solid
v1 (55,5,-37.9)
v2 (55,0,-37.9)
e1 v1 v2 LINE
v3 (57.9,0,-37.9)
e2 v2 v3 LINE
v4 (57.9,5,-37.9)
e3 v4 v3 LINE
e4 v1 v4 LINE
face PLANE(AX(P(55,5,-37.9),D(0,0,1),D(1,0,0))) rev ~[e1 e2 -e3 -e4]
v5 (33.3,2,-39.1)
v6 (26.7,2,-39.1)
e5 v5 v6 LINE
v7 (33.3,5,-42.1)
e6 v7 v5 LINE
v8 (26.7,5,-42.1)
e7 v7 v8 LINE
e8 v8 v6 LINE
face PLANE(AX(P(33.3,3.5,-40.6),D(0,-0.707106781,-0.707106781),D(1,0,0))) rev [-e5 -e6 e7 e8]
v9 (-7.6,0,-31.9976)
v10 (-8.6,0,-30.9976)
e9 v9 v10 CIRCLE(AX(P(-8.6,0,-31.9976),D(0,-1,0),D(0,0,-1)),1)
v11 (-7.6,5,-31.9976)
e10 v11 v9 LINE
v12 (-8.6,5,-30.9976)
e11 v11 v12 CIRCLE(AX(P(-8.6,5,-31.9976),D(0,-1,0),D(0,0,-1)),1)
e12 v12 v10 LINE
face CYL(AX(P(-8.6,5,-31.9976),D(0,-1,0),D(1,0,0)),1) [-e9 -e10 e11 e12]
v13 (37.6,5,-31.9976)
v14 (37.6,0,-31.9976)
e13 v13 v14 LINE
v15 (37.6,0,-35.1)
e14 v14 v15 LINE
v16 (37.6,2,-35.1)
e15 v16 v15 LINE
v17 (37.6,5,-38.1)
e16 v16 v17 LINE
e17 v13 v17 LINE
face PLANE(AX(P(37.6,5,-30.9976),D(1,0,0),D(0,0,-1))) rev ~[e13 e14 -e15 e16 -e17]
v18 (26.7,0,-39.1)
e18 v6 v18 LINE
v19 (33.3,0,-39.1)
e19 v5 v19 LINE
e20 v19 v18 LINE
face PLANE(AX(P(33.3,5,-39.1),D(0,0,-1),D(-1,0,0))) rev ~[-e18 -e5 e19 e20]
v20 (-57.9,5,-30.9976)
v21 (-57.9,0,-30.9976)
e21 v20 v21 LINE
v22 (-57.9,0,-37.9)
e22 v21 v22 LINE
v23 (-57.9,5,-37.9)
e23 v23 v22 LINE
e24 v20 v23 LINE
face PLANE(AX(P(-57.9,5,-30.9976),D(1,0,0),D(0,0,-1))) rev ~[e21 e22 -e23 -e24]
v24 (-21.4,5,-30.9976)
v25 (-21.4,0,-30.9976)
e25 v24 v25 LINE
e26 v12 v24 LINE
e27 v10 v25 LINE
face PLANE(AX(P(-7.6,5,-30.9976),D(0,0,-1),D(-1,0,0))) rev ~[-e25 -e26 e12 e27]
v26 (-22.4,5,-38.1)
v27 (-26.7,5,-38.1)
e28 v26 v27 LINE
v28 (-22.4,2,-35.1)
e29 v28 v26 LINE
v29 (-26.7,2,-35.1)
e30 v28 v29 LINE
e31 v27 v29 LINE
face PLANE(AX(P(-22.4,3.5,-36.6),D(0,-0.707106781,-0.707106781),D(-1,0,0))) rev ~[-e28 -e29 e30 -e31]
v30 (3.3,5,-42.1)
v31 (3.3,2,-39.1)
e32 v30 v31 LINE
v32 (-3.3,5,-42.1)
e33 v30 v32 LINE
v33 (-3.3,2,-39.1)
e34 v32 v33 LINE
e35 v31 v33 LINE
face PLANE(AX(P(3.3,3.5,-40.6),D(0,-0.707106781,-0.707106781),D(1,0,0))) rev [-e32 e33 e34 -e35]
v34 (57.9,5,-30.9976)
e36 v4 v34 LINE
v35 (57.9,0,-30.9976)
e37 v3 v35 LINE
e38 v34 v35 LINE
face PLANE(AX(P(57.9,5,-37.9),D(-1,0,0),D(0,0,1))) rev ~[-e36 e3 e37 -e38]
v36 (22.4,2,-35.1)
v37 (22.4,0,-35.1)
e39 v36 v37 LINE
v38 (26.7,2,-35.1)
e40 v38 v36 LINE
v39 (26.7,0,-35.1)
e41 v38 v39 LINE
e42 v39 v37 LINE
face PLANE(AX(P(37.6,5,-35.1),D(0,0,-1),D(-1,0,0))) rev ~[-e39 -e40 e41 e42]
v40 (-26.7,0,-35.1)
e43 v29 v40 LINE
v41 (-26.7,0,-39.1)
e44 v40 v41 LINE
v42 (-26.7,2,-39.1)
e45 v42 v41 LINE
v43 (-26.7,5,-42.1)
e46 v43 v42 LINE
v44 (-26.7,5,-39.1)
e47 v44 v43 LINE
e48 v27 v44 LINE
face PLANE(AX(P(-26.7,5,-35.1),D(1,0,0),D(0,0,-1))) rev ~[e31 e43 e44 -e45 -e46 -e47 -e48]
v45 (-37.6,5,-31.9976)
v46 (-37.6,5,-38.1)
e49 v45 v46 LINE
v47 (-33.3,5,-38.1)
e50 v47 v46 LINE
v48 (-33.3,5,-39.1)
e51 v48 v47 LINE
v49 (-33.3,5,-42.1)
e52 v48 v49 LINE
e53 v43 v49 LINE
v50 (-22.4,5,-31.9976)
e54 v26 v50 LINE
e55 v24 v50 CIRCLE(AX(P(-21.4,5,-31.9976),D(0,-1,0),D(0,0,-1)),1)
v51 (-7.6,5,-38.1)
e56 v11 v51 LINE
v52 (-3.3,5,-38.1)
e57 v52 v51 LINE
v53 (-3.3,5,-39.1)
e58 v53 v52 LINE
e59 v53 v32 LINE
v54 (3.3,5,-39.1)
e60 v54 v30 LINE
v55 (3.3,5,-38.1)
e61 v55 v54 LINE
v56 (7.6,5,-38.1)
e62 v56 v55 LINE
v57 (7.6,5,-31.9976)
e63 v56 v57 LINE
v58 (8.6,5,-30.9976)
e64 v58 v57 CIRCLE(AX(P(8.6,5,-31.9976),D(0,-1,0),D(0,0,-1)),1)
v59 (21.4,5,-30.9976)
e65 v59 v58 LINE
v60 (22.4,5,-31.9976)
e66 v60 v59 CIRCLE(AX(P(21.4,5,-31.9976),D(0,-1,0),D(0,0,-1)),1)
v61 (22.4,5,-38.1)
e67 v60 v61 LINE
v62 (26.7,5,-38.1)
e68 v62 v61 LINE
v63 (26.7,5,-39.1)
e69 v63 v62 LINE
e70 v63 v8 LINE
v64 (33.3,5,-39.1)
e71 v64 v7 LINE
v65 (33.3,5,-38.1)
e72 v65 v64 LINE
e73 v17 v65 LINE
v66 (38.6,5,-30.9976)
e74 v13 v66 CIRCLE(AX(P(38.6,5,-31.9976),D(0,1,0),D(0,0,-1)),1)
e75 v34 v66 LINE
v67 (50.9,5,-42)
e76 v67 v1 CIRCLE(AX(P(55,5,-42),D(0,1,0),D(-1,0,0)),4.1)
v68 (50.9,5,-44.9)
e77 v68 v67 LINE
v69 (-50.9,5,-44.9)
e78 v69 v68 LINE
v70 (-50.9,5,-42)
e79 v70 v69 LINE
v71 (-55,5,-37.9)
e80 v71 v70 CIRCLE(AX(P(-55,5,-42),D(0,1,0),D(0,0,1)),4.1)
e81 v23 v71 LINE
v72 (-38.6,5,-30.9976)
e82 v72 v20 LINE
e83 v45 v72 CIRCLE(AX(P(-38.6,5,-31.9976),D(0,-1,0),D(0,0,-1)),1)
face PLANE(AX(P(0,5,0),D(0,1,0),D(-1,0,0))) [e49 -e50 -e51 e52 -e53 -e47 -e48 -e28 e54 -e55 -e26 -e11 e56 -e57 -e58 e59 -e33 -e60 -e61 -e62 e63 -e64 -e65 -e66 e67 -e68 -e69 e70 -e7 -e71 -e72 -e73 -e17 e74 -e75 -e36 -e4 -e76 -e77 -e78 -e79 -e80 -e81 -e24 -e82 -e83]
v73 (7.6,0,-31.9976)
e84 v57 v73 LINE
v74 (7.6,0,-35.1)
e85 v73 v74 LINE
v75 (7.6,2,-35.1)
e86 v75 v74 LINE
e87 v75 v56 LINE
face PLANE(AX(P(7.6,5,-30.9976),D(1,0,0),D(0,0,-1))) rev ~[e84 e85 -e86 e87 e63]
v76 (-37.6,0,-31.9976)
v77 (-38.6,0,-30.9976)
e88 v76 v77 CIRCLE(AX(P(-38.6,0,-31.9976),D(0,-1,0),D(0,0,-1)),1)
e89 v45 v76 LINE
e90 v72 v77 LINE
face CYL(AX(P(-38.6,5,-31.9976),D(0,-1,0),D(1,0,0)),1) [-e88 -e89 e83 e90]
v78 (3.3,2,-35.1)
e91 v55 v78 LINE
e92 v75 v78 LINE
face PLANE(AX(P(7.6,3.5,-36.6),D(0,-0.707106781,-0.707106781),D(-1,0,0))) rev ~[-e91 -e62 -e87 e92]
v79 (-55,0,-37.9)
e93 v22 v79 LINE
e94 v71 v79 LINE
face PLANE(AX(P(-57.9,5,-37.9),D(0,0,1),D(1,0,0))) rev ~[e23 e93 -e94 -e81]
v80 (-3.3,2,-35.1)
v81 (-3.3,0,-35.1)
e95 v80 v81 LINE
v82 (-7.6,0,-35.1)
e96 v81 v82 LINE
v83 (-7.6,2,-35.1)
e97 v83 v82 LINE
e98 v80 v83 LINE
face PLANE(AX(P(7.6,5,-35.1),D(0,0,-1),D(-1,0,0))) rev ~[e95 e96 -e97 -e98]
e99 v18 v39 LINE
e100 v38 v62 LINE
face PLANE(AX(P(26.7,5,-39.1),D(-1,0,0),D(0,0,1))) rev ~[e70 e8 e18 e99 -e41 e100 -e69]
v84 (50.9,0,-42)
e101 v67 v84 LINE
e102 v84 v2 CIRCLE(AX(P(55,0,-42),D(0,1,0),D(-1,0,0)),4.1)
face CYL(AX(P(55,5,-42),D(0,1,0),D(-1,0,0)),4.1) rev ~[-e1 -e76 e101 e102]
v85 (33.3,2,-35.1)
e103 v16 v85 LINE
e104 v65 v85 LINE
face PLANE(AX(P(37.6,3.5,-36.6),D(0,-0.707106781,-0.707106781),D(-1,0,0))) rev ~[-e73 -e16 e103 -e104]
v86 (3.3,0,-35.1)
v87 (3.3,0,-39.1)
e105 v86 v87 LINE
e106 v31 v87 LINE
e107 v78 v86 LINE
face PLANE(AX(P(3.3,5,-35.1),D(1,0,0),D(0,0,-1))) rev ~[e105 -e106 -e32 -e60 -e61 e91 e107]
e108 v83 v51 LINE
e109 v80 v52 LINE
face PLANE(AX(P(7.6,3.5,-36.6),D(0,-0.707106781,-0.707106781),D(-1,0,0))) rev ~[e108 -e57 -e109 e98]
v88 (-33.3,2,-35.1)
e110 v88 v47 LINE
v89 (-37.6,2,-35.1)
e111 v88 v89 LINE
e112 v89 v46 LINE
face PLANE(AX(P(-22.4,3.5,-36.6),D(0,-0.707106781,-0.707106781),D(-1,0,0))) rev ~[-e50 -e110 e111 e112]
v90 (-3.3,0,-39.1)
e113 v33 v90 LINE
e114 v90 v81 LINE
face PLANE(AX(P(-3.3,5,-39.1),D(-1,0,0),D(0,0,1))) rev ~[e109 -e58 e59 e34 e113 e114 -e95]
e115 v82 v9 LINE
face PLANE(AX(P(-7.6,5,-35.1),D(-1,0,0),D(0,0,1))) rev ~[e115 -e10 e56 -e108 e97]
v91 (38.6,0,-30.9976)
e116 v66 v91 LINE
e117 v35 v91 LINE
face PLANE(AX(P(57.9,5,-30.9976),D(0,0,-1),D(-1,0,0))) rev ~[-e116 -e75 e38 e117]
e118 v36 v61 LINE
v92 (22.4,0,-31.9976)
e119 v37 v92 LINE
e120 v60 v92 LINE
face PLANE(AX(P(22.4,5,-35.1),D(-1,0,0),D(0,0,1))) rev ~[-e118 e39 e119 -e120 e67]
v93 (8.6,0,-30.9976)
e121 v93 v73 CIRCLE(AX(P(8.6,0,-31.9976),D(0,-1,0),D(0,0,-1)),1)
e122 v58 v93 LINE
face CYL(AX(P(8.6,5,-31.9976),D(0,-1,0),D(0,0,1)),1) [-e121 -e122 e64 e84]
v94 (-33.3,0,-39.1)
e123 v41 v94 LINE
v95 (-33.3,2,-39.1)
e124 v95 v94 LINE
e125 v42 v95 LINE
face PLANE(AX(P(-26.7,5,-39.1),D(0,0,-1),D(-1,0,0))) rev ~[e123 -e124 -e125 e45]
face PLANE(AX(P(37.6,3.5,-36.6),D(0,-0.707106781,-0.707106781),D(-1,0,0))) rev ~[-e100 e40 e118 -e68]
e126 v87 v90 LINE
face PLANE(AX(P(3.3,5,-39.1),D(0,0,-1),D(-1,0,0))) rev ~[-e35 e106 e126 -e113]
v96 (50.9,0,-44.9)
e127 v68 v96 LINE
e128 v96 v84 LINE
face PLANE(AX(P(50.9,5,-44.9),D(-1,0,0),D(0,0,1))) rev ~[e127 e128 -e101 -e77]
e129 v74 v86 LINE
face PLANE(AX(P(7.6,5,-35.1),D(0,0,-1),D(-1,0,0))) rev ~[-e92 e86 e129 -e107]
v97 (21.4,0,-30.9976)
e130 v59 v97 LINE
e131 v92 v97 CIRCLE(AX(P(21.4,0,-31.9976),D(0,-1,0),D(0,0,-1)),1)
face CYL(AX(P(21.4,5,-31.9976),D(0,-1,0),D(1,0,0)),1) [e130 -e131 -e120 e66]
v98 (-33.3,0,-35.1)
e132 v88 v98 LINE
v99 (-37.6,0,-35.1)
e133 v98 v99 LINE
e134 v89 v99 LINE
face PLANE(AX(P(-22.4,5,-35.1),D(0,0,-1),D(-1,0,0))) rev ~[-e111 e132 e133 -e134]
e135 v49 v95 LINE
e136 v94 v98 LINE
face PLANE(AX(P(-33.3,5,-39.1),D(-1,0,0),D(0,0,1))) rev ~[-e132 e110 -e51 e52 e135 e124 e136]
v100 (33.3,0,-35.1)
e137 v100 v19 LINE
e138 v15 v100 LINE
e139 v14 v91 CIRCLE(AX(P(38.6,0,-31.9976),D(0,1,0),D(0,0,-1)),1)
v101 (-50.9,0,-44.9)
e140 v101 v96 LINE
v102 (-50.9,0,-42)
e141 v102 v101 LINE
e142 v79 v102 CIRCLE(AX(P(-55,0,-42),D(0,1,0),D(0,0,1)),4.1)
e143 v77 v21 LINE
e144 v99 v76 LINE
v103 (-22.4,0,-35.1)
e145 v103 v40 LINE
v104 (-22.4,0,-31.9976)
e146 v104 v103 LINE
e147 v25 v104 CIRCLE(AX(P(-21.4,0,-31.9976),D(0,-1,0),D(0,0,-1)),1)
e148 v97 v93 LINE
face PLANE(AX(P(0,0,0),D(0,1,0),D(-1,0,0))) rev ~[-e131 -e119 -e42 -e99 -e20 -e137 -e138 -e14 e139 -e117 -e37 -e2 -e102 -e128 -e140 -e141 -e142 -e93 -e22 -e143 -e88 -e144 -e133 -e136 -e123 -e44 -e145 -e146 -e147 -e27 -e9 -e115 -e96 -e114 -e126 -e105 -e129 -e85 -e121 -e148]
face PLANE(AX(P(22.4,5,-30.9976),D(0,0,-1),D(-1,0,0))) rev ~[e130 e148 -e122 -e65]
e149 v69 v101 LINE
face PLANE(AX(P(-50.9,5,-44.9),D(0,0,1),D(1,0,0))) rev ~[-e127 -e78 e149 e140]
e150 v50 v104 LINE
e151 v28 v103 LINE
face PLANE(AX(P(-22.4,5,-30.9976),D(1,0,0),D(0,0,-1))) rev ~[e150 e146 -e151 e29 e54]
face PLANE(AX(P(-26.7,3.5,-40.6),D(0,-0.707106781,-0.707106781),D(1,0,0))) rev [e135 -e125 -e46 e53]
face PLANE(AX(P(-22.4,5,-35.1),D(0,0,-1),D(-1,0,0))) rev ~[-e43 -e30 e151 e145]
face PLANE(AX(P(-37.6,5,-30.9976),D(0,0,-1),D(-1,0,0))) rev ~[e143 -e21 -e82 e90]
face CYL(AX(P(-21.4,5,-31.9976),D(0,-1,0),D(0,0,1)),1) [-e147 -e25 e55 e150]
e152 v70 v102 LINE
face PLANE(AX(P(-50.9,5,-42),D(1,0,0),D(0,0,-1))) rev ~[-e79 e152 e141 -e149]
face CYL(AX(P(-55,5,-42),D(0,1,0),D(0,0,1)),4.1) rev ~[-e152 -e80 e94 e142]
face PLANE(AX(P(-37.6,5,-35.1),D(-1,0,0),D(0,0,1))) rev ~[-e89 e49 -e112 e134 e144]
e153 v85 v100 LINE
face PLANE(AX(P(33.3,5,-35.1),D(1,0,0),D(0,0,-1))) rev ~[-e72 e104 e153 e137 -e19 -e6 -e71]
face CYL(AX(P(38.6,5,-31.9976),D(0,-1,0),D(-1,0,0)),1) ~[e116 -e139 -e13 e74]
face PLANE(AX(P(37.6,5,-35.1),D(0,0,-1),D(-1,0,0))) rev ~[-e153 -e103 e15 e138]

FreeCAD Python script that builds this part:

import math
import FreeCAD as App
import Part
import Sketcher
from FreeCAD import Vector


def edges_at(feature, points):
    """Names of the edges that pass closest to the given points."""
    edges = feature.Shape.Edges
    near = lambda p: min(range(len(edges)), key=lambda i: edges[i].distToShape(Part.Vertex(*p))[0])
    return sorted({f"Edge{near(p) + 1}" for p in points})

doc = App.newDocument("Part")
params = doc.addObject("Spreadsheet::Sheet", "Params")
for row, (alias, value) in enumerate([
    ("sketch1_radius", "4 mm"),
    ("sketch1_width", "15 mm"),
    ("sketch1_width2", "3 mm"),
    ("sketch1_width3", "102 mm"),
    ("pad1_length", "5 mm"),
    ("sketch2_radius", "4 mm"),
    ("sketch2_radius2", "4.1 mm"),
    ("sketch2_width", "3 mm"),
    ("sketch2_width2", "15 mm"),
    ("sketch2_width3", "102 mm"),
    ("pocket1_length", "5 mm"),
    ("chamfer_size", "3 mm"),
    ("fillet_radius", "1 mm"),
    ("sketch3_width", "6.6 mm"),
    ("sketch3_height", "4 mm"),
    ("pocket2_length", "5 mm"),
    ("chamfer2_size", "3 mm"),
], start=1):
    params.set(f"A{row}", alias)
    params.set(f"B{row}", "=" + value)
    params.setAlias(f"B{row}", alias)

body = doc.addObject("PartDesign::Body", "Body")

sketch1 = body.newObject("Sketcher::SketchObject", "Sketch")
sketch1.AttachmentSupport = (doc.getObject("XZ_Plane"), [""])
sketch1.MapMode = "FlatFace"
sketch1.addGeometry(Part.LineSegment(Vector(-58, -38, 0), Vector(-58, -30.9, 0)), False)
sketch1.addGeometry(Part.LineSegment(Vector(-58, -30.9, 0), Vector(-37.5, -30.9, 0)), False)
sketch1.addGeometry(Part.LineSegment(Vector(-37.5, -30.9, 0), Vector(-37.5, -35, 0)), False)
sketch1.addGeometry(Part.LineSegment(Vector(-37.5, -35, 0), Vector(-22.5, -35, 0)), False)
sketch1.addGeometry(Part.LineSegment(Vector(-22.5, -35, 0), Vector(-22.5, -30.9, 0)), False)
sketch1.addGeometry(Part.LineSegment(Vector(-22.5, -30.9, 0), Vector(-7.5, -30.9, 0)), False)
sketch1.addGeometry(Part.LineSegment(Vector(-7.5, -30.9, 0), Vector(-7.5, -35, 0)), False)
sketch1.addGeometry(Part.LineSegment(Vector(-7.5, -35, 0), Vector(7.5, -35, 0)), False)
sketch1.addGeometry(Part.LineSegment(Vector(7.5, -35, 0), Vector(7.5, -30.9, 0)), False)
sketch1.addGeometry(Part.LineSegment(Vector(7.5, -30.9, 0), Vector(22.5, -30.9, 0)), False)
sketch1.addGeometry(Part.LineSegment(Vector(22.5, -30.9, 0), Vector(22.5, -35, 0)), False)
sketch1.addGeometry(Part.LineSegment(Vector(22.5, -35, 0), Vector(37.5, -35, 0)), False)
sketch1.addGeometry(Part.LineSegment(Vector(37.5, -35, 0), Vector(37.5, -30.9, 0)), False)
sketch1.addGeometry(Part.LineSegment(Vector(37.5, -30.9, 0), Vector(58, -30.9, 0)), False)
sketch1.addGeometry(Part.LineSegment(Vector(58, -30.9, 0), Vector(58, -38, 0)), False)
sketch1.addGeometry(Part.LineSegment(Vector(58, -38, 0), Vector(55, -38, 0)), False)
sketch1.addGeometry(Part.ArcOfCircle(Part.Circle(Vector(55, -42, 0), Vector(0, 0, 1), 4), math.radians(90), math.radians(180)), False)
sketch1.addGeometry(Part.LineSegment(Vector(51, -42, 0), Vector(51, -45, 0)), False)
sketch1.addGeometry(Part.LineSegment(Vector(51, -45, 0), Vector(-51, -45, 0)), False)
sketch1.addGeometry(Part.LineSegment(Vector(-51, -45, 0), Vector(-51, -42, 0)), False)
sketch1.addGeometry(Part.ArcOfCircle(Part.Circle(Vector(-55, -42, 0), Vector(0, 0, 1), 4), math.radians(0), math.radians(90)), False)
sketch1.addGeometry(Part.LineSegment(Vector(-55, -38, 0), Vector(-58, -38, 0)), False)
sketch1.addConstraint(Sketcher.Constraint("Coincident", 0, 2, 1, 1))
sketch1.addConstraint(Sketcher.Constraint("Coincident", 1, 2, 2, 1))
sketch1.addConstraint(Sketcher.Constraint("Coincident", 2, 2, 3, 1))
sketch1.addConstraint(Sketcher.Constraint("Coincident", 3, 2, 4, 1))
sketch1.addConstraint(Sketcher.Constraint("Coincident", 4, 2, 5, 1))
sketch1.addConstraint(Sketcher.Constraint("Coincident", 5, 2, 6, 1))
sketch1.addConstraint(Sketcher.Constraint("Coincident", 6, 2, 7, 1))
sketch1.addConstraint(Sketcher.Constraint("Coincident", 7, 2, 8, 1))
sketch1.addConstraint(Sketcher.Constraint("Coincident", 8, 2, 9, 1))
sketch1.addConstraint(Sketcher.Constraint("Coincident", 9, 2, 10, 1))
sketch1.addConstraint(Sketcher.Constraint("Coincident", 10, 2, 11, 1))
sketch1.addConstraint(Sketcher.Constraint("Coincident", 11, 2, 12, 1))
sketch1.addConstraint(Sketcher.Constraint("Coincident", 12, 2, 13, 1))
sketch1.addConstraint(Sketcher.Constraint("Coincident", 13, 2, 14, 1))
sketch1.addConstraint(Sketcher.Constraint("Coincident", 14, 2, 15, 1))
sketch1.addConstraint(Sketcher.Constraint("Tangent", 15, 2, 16, 1))
sketch1.addConstraint(Sketcher.Constraint("Tangent", 16, 2, 17, 1))
sketch1.addConstraint(Sketcher.Constraint("Coincident", 17, 2, 18, 1))
sketch1.addConstraint(Sketcher.Constraint("Coincident", 18, 2, 19, 1))
sketch1.addConstraint(Sketcher.Constraint("Tangent", 19, 2, 20, 1))
sketch1.addConstraint(Sketcher.Constraint("Tangent", 20, 2, 21, 1))
sketch1.addConstraint(Sketcher.Constraint("Coincident", 21, 2, 0, 1))
sketch1.addConstraint(Sketcher.Constraint("Vertical", 0))
sketch1.addConstraint(Sketcher.Constraint("Horizontal", 1))
sketch1.addConstraint(Sketcher.Constraint("Vertical", 2))
sketch1.addConstraint(Sketcher.Constraint("Horizontal", 3))
sketch1.addConstraint(Sketcher.Constraint("Vertical", 4))
sketch1.addConstraint(Sketcher.Constraint("Horizontal", 5))
sketch1.addConstraint(Sketcher.Constraint("Vertical", 6))
sketch1.addConstraint(Sketcher.Constraint("Horizontal", 7))
sketch1.addConstraint(Sketcher.Constraint("Vertical", 8))
sketch1.addConstraint(Sketcher.Constraint("Horizontal", 9))
sketch1.addConstraint(Sketcher.Constraint("Vertical", 10))
sketch1.addConstraint(Sketcher.Constraint("Horizontal", 11))
sketch1.addConstraint(Sketcher.Constraint("Vertical", 12))
sketch1.addConstraint(Sketcher.Constraint("Horizontal", 13))
sketch1.addConstraint(Sketcher.Constraint("Vertical", 14))
sketch1.addConstraint(Sketcher.Constraint("Horizontal", 15))
sketch1.addConstraint(Sketcher.Constraint("Vertical", 17))
sketch1.addConstraint(Sketcher.Constraint("Horizontal", 18))
sketch1.addConstraint(Sketcher.Constraint("Vertical", 19))
sketch1.addConstraint(Sketcher.Constraint("Horizontal", 21))
sketch1.addConstraint(Sketcher.Constraint("Equal", 16, 20))
sketch1.addConstraint(Sketcher.Constraint("Symmetric", 16, 3, 20, 3, -2))
sketch1.addConstraint(Sketcher.Constraint("Symmetric", 5, 2, 8, 2, -2))
sketch1.addConstraint(Sketcher.Constraint("Symmetric", 3, 2, 10, 2, -2))
sketch1.addConstraint(Sketcher.Constraint("Symmetric", 1, 2, 12, 2, -2))
sketch1.addConstraint(Sketcher.Constraint("Horizontal", 1, 2, 4, 2))
sketch1.addConstraint(Sketcher.Constraint("Horizontal", 3, 2, 6, 2))
sketch1.addConstraint(Sketcher.Constraint("Equal", 3, 5))
sketch1.addConstraint(Sketcher.Constraint("Equal", 5, 7))
sketch1.addConstraint(Sketcher.Constraint("Equal", 1, 13))
sketch1.addConstraint(Sketcher.Constraint("Equal", 21, 17))
sketch1.addConstraint(Sketcher.Constraint("Radius", 16, 4.0))
sketch1.addConstraint(Sketcher.Constraint("DistanceX", 3, 1, 3, 2, 15.0))
sketch1.addConstraint(Sketcher.Constraint("DistanceX", 15, 2, 15, 1, 3.0))
sketch1.addConstraint(Sketcher.Constraint("DistanceX", 18, 2, 18, 1, 102.0))
sketch1.addConstraint(Sketcher.Constraint("DistanceY", 16, 3, -1, 1, 42.0))
sketch1.addConstraint(Sketcher.Constraint("DistanceY", 2, 2, -1, 1, 35.0))
sketch1.addConstraint(Sketcher.Constraint("DistanceY", 0, 1, 0, 2, 7.1024))
sketch1.setExpression("Constraints[53]", "Params.sketch1_radius")
sketch1.setExpression("Constraints[54]", "Params.sketch1_width")
sketch1.setExpression("Constraints[55]", "Params.sketch1_width2")
sketch1.setExpression("Constraints[56]", "Params.sketch1_width3")
pad1 = body.newObject("PartDesign::Pad", "Pad")
pad1.Profile = sketch1
pad1.setExpression("Length", "Params.pad1_length")
pad1.Reversed = True

sketch2 = body.newObject("Sketcher::SketchObject", "Sketch001")
sketch2.AttachmentSupport = (doc.getObject("XZ_Plane"), [""])
sketch2.MapMode = "FlatFace"
sketch2.AttachmentOffset = App.Placement(Vector(0, 0, -5), App.Rotation())
sketch2.addGeometry(Part.LineSegment(Vector(-55, -38, 0), Vector(-58, -38, 0)), False)
sketch2.addGeometry(Part.LineSegment(Vector(-58, -38, 0), Vector(-58, -30.9, 0)), False)
sketch2.addGeometry(Part.LineSegment(Vector(-58, -30.9, 0), Vector(-37.5, -30.9, 0)), False)
sketch2.addGeometry(Part.LineSegment(Vector(-37.5, -30.9, 0), Vector(-37.5, -35, 0)), False)
sketch2.addGeometry(Part.LineSegment(Vector(-37.5, -35, 0), Vector(-22.5, -35, 0)), False)
sketch2.addGeometry(Part.LineSegment(Vector(-22.5, -35, 0), Vector(-22.5, -30.9, 0)), False)
sketch2.addGeometry(Part.LineSegment(Vector(-22.5, -30.9, 0), Vector(-7.5, -30.9, 0)), False)
sketch2.addGeometry(Part.LineSegment(Vector(-7.5, -30.9, 0), Vector(-7.5, -35, 0)), False)
sketch2.addGeometry(Part.LineSegment(Vector(-7.5, -35, 0), Vector(7.5, -35, 0)), False)
sketch2.addGeometry(Part.LineSegment(Vector(7.5, -35, 0), Vector(7.5, -30.9, 0)), False)
sketch2.addGeometry(Part.LineSegment(Vector(7.5, -30.9, 0), Vector(22.5, -30.9, 0)), False)
sketch2.addGeometry(Part.LineSegment(Vector(22.5, -30.9, 0), Vector(22.5, -35, 0)), False)
sketch2.addGeometry(Part.LineSegment(Vector(22.5, -35, 0), Vector(37.5, -35, 0)), False)
sketch2.addGeometry(Part.LineSegment(Vector(37.5, -35, 0), Vector(37.5, -30.9, 0)), False)
sketch2.addGeometry(Part.LineSegment(Vector(37.5, -30.9, 0), Vector(58, -30.9, 0)), False)
sketch2.addGeometry(Part.LineSegment(Vector(58, -30.9, 0), Vector(58, -38, 0)), False)
sketch2.addGeometry(Part.LineSegment(Vector(58, -38, 0), Vector(55, -38, 0)), False)
sketch2.addGeometry(Part.ArcOfCircle(Part.Circle(Vector(55, -42, 0), Vector(0, 0, 1), 4), math.radians(90), math.radians(180)), False)
sketch2.addGeometry(Part.LineSegment(Vector(51, -42, 0), Vector(51, -45, 0)), False)
sketch2.addGeometry(Part.LineSegment(Vector(51, -45, 0), Vector(-51, -45, 0)), False)
sketch2.addGeometry(Part.LineSegment(Vector(-51, -45, 0), Vector(-51, -42, 0)), False)
sketch2.addGeometry(Part.ArcOfCircle(Part.Circle(Vector(-55, -42, 0), Vector(0, 0, 1), 4), math.radians(0), math.radians(90)), False)
sketch2.addGeometry(Part.LineSegment(Vector(-50.9, -42, 0), Vector(-50.9, -44.9, 0)), False)
sketch2.addGeometry(Part.LineSegment(Vector(-50.9, -44.9, 0), Vector(50.9, -44.9, 0)), False)
sketch2.addGeometry(Part.LineSegment(Vector(50.9, -44.9, 0), Vector(50.9, -42, 0)), False)
sketch2.addGeometry(Part.ArcOfCircle(Part.Circle(Vector(55, -42, 0), Vector(0, 0, 1), 4.1), math.radians(90), math.radians(180)), False)
sketch2.addGeometry(Part.LineSegment(Vector(55, -37.9, 0), Vector(57.9, -37.9, 0)), False)
sketch2.addGeometry(Part.LineSegment(Vector(57.9, -37.9, 0), Vector(57.9, -31, 0)), False)
sketch2.addGeometry(Part.LineSegment(Vector(57.9, -31, 0), Vector(37.6, -31, 0)), False)
sketch2.addGeometry(Part.LineSegment(Vector(37.6, -31, 0), Vector(37.6, -35.1, 0)), False)
sketch2.addGeometry(Part.LineSegment(Vector(37.6, -35.1, 0), Vector(22.4, -35.1, 0)), False)
sketch2.addGeometry(Part.LineSegment(Vector(22.4, -35.1, 0), Vector(22.4, -31, 0)), False)
sketch2.addGeometry(Part.LineSegment(Vector(22.4, -31, 0), Vector(7.6, -31, 0)), False)
sketch2.addGeometry(Part.LineSegment(Vector(7.6, -31, 0), Vector(7.6, -35.1, 0)), False)
sketch2.addGeometry(Part.LineSegment(Vector(7.6, -35.1, 0), Vector(-7.6, -35.1, 0)), False)
sketch2.addGeometry(Part.LineSegment(Vector(-7.6, -35.1, 0), Vector(-7.6, -31, 0)), False)
sketch2.addGeometry(Part.LineSegment(Vector(-7.6, -31, 0), Vector(-22.4, -31, 0)), False)
sketch2.addGeometry(Part.LineSegment(Vector(-22.4, -31, 0), Vector(-22.4, -35.1, 0)), False)
sketch2.addGeometry(Part.LineSegment(Vector(-22.4, -35.1, 0), Vector(-37.6, -35.1, 0)), False)
sketch2.addGeometry(Part.LineSegment(Vector(-37.6, -35.1, 0), Vector(-37.6, -31, 0)), False)
sketch2.addGeometry(Part.LineSegment(Vector(-37.6, -31, 0), Vector(-57.9, -31, 0)), False)
sketch2.addGeometry(Part.LineSegment(Vector(-57.9, -31, 0), Vector(-57.9, -37.9, 0)), False)
sketch2.addGeometry(Part.LineSegment(Vector(-57.9, -37.9, 0), Vector(-55, -37.9, 0)), False)
sketch2.addGeometry(Part.ArcOfCircle(Part.Circle(Vector(-55, -42, 0), Vector(0, 0, 1), 4.1), math.radians(0), math.radians(90)), False)
sketch2.addConstraint(Sketcher.Constraint("Coincident", 0, 2, 1, 1))
sketch2.addConstraint(Sketcher.Constraint("Coincident", 1, 2, 2, 1))
sketch2.addConstraint(Sketcher.Constraint("Coincident", 2, 2, 3, 1))
sketch2.addConstraint(Sketcher.Constraint("Coincident", 3, 2, 4, 1))
sketch2.addConstraint(Sketcher.Constraint("Coincident", 4, 2, 5, 1))
sketch2.addConstraint(Sketcher.Constraint("Coincident", 5, 2, 6, 1))
sketch2.addConstraint(Sketcher.Constraint("Coincident", 6, 2, 7, 1))
sketch2.addConstraint(Sketcher.Constraint("Coincident", 7, 2, 8, 1))
sketch2.addConstraint(Sketcher.Constraint("Coincident", 8, 2, 9, 1))
sketch2.addConstraint(Sketcher.Constraint("Coincident", 9, 2, 10, 1))
sketch2.addConstraint(Sketcher.Constraint("Coincident", 10, 2, 11, 1))
sketch2.addConstraint(Sketcher.Constraint("Coincident", 11, 2, 12, 1))
sketch2.addConstraint(Sketcher.Constraint("Coincident", 12, 2, 13, 1))
sketch2.addConstraint(Sketcher.Constraint("Coincident", 13, 2, 14, 1))
sketch2.addConstraint(Sketcher.Constraint("Coincident", 14, 2, 15, 1))
sketch2.addConstraint(Sketcher.Constraint("Coincident", 15, 2, 16, 1))
sketch2.addConstraint(Sketcher.Constraint("Tangent", 16, 2, 17, 1))
sketch2.addConstraint(Sketcher.Constraint("Tangent", 17, 2, 18, 1))
sketch2.addConstraint(Sketcher.Constraint("Coincident", 18, 2, 19, 1))
sketch2.addConstraint(Sketcher.Constraint("Coincident", 19, 2, 20, 1))
sketch2.addConstraint(Sketcher.Constraint("Tangent", 20, 2, 21, 1))
sketch2.addConstraint(Sketcher.Constraint("Tangent", 21, 2, 0, 1))
sketch2.addConstraint(Sketcher.Constraint("Coincident", 22, 2, 23, 1))
sketch2.addConstraint(Sketcher.Constraint("Coincident", 23, 2, 24, 1))
sketch2.addConstraint(Sketcher.Constraint("Tangent", 24, 2, 25, 2))
sketch2.addConstraint(Sketcher.Constraint("Tangent", 25, 1, 26, 1))
sketch2.addConstraint(Sketcher.Constraint("Coincident", 26, 2, 27, 1))
sketch2.addConstraint(Sketcher.Constraint("Coincident", 27, 2, 28, 1))
sketch2.addConstraint(Sketcher.Constraint("Coincident", 28, 2, 29, 1))
sketch2.addConstraint(Sketcher.Constraint("Coincident", 29, 2, 30, 1))
sketch2.addConstraint(Sketcher.Constraint("Coincident", 30, 2, 31, 1))
sketch2.addConstraint(Sketcher.Constraint("Coincident", 31, 2, 32, 1))
sketch2.addConstraint(Sketcher.Constraint("Coincident", 32, 2, 33, 1))
sketch2.addConstraint(Sketcher.Constraint("Coincident", 33, 2, 34, 1))
sketch2.addConstraint(Sketcher.Constraint("Coincident", 34, 2, 35, 1))
sketch2.addConstraint(Sketcher.Constraint("Coincident", 35, 2, 36, 1))
sketch2.addConstraint(Sketcher.Constraint("Coincident", 36, 2, 37, 1))
sketch2.addConstraint(Sketcher.Constraint("Coincident", 37, 2, 38, 1))
sketch2.addConstraint(Sketcher.Constraint("Coincident", 38, 2, 39, 1))
sketch2.addConstraint(Sketcher.Constraint("Coincident", 39, 2, 40, 1))
sketch2.addConstraint(Sketcher.Constraint("Coincident", 40, 2, 41, 1))
sketch2.addConstraint(Sketcher.Constraint("Coincident", 41, 2, 42, 1))
sketch2.addConstraint(Sketcher.Constraint("Tangent", 42, 2, 43, 2))
sketch2.addConstraint(Sketcher.Constraint("Tangent", 43, 1, 22, 1))
sketch2.addConstraint(Sketcher.Constraint("Horizontal", 0))
sketch2.addConstraint(Sketcher.Constraint("Vertical", 1))
sketch2.addConstraint(Sketcher.Constraint("Horizontal", 2))
sketch2.addConstraint(Sketcher.Constraint("Vertical", 3))
sketch2.addConstraint(Sketcher.Constraint("Horizontal", 4))
sketch2.addConstraint(Sketcher.Constraint("Vertical", 5))
sketch2.addConstraint(Sketcher.Constraint("Horizontal", 6))
sketch2.addConstraint(Sketcher.Constraint("Vertical", 7))
sketch2.addConstraint(Sketcher.Constraint("Horizontal", 8))
sketch2.addConstraint(Sketcher.Constraint("Vertical", 9))
sketch2.addConstraint(Sketcher.Constraint("Horizontal", 10))
sketch2.addConstraint(Sketcher.Constraint("Vertical", 11))
sketch2.addConstraint(Sketcher.Constraint("Horizontal", 12))
sketch2.addConstraint(Sketcher.Constraint("Vertical", 13))
sketch2.addConstraint(Sketcher.Constraint("Horizontal", 14))
sketch2.addConstraint(Sketcher.Constraint("Vertical", 15))
sketch2.addConstraint(Sketcher.Constraint("Horizontal", 16))
sketch2.addConstraint(Sketcher.Constraint("Vertical", 18))
sketch2.addConstraint(Sketcher.Constraint("Horizontal", 19))
sketch2.addConstraint(Sketcher.Constraint("Vertical", 20))
sketch2.addConstraint(Sketcher.Constraint("Vertical", 22))
sketch2.addConstraint(Sketcher.Constraint("Horizontal", 23))
sketch2.addConstraint(Sketcher.Constraint("Vertical", 24))
sketch2.addConstraint(Sketcher.Constraint("Horizontal", 26))
sketch2.addConstraint(Sketcher.Constraint("Vertical", 27))
sketch2.addConstraint(Sketcher.Constraint("Horizontal", 28))
sketch2.addConstraint(Sketcher.Constraint("Vertical", 29))
sketch2.addConstraint(Sketcher.Constraint("Horizontal", 30))
sketch2.addConstraint(Sketcher.Constraint("Vertical", 31))
sketch2.addConstraint(Sketcher.Constraint("Horizontal", 32))
sketch2.addConstraint(Sketcher.Constraint("Vertical", 33))
sketch2.addConstraint(Sketcher.Constraint("Horizontal", 34))
sketch2.addConstraint(Sketcher.Constraint("Vertical", 35))
sketch2.addConstraint(Sketcher.Constraint("Horizontal", 36))
sketch2.addConstraint(Sketcher.Constraint("Vertical", 37))
sketch2.addConstraint(Sketcher.Constraint("Horizontal", 38))
sketch2.addConstraint(Sketcher.Constraint("Vertical", 39))
sketch2.addConstraint(Sketcher.Constraint("Horizontal", 40))
sketch2.addConstraint(Sketcher.Constraint("Vertical", 41))
sketch2.addConstraint(Sketcher.Constraint("Horizontal", 42))
sketch2.addConstraint(Sketcher.Constraint("Coincident", 25, 3, 17, 3))
sketch2.addConstraint(Sketcher.Constraint("Coincident", 43, 3, 21, 3))
sketch2.addConstraint(Sketcher.Constraint("Equal", 17, 21))
sketch2.addConstraint(Sketcher.Constraint("Equal", 25, 43))
sketch2.addConstraint(Sketcher.Constraint("Symmetric", 17, 3, 21, 3, -2))
sketch2.addConstraint(Sketcher.Constraint("Symmetric", 6, 2, 9, 2, -2))
sketch2.addConstraint(Sketcher.Constraint("Symmetric", 4, 2, 11, 2, -2))
sketch2.addConstraint(Sketcher.Constraint("Symmetric", 2, 2, 13, 2, -2))
sketch2.addConstraint(Sketcher.Constraint("Symmetric", 32, 2, 35, 2, -2))
sketch2.addConstraint(Sketcher.Constraint("Symmetric", 30, 2, 37, 2, -2))
sketch2.addConstraint(Sketcher.Constraint("Symmetric", 28, 2, 39, 2, -2))
sketch2.addConstraint(Sketcher.Constraint("Horizontal", 2, 2, 5, 2))
sketch2.addConstraint(Sketcher.Constraint("Horizontal", 4, 2, 7, 2))
sketch2.addConstraint(Sketcher.Constraint("Horizontal", 28, 2, 31, 2))
sketch2.addConstraint(Sketcher.Constraint("Horizontal", 30, 2, 33, 2))
sketch2.addConstraint(Sketcher.Constraint("Equal", 4, 6))
sketch2.addConstraint(Sketcher.Constraint("Equal", 6, 8))
sketch2.addConstraint(Sketcher.Constraint("Equal", 2, 14))
sketch2.addConstraint(Sketcher.Constraint("Equal", 30, 34))
sketch2.addConstraint(Sketcher.Constraint("Equal", 28, 40))
sketch2.addConstraint(Sketcher.Constraint("Equal", 16, 18))
sketch2.addConstraint(Sketcher.Constraint("Equal", 42, 22))
sketch2.addConstraint(Sketcher.Constraint("Equal", 13, 29))
sketch2.addConstraint(Sketcher.Constraint("Radius", 17, 4.0))
sketch2.addConstraint(Sketcher.Constraint("Radius", 25, 4.1))
sketch2.addConstraint(Sketcher.Constraint("DistanceY", 19, 2, 22, 2, 0.1))
sketch2.addConstraint(Sketcher.Constraint("DistanceY", 27, 2, 14, 2, 0.1))
sketch2.addConstraint(Sketcher.Constraint("DistanceX", 13, 2, 28, 2, 0.1))
sketch2.addConstraint(Sketcher.Constraint("DistanceX", 30, 2, 11, 2, 0.1))
sketch2.addConstraint(Sketcher.Constraint("DistanceX", 0, 2, 0, 1, 3.0))
sketch2.addConstraint(Sketcher.Constraint("DistanceX", 4, 1, 4, 2, 15.0))
sketch2.addConstraint(Sketcher.Constraint("DistanceX", 19, 2, 19, 1, 102.0))
sketch2.addConstraint(Sketcher.Constraint("DistanceY", 17, 3, -1, 1, 42.0))
sketch2.addConstraint(Sketcher.Constraint("DistanceY", 3, 2, -1, 1, 35.0))
sketch2.addConstraint(Sketcher.Constraint("DistanceY", 1, 1, 1, 2, 7.1024))
sketch2.setExpression("Constraints[107]", "Params.sketch2_radius")
sketch2.setExpression("Constraints[108]", "Params.sketch2_radius2")
sketch2.setExpression("Constraints[113]", "Params.sketch2_width")
sketch2.setExpression("Constraints[114]", "Params.sketch2_width2")
sketch2.setExpression("Constraints[115]", "Params.sketch2_width3")
pocket1 = body.newObject("PartDesign::Pocket", "Pocket")
pocket1.Profile = sketch2
pocket1.setExpression("Length", "Params.pocket1_length")
pocket1.Reversed = True
doc.recompute()

chamfer = body.newObject("PartDesign::Chamfer", "Chamfer")
chamfer.Base = (pocket1, edges_at(pocket1, [(-30, 5, -35.1), (0, 5, -35.1), (30, 5, -35.1)]))
chamfer.setExpression("Size", "Params.chamfer_size")
doc.recompute()

fillet = body.newObject("PartDesign::Fillet", "Fillet")
fillet.Base = (chamfer, edges_at(chamfer, [
    (-37.6, 2.5, -30.998),
    (-22.4, 2.5, -30.998),
    (-7.6, 2.5, -30.998),
    (7.6, 2.5, -30.998),
    (22.4, 2.5, -30.998),
    (37.6, 2.5, -30.998),
]))
fillet.setExpression("Radius", "Params.fillet_radius")

sketch3 = body.newObject("Sketcher::SketchObject", "Sketch002")
sketch3.AttachmentSupport = (doc.getObject("XZ_Plane"), [""])
sketch3.MapMode = "FlatFace"
sketch3.AttachmentOffset = App.Placement(Vector(0, 0, -5), App.Rotation())
sketch3.addGeometry(Part.LineSegment(Vector(-33.3, -39.1, 0), Vector(-33.3, -35.1, 0)), False)
sketch3.addGeometry(Part.LineSegment(Vector(-33.3, -35.1, 0), Vector(-26.7, -35.1, 0)), False)
sketch3.addGeometry(Part.LineSegment(Vector(-26.7, -35.1, 0), Vector(-26.7, -39.1, 0)), False)
sketch3.addGeometry(Part.LineSegment(Vector(-26.7, -39.1, 0), Vector(-33.3, -39.1, 0)), False)
sketch3.addGeometry(Part.LineSegment(Vector(-3.3, -39.1, 0), Vector(-3.3, -35.1, 0)), False)
sketch3.addGeometry(Part.LineSegment(Vector(-3.3, -35.1, 0), Vector(3.3, -35.1, 0)), False)
sketch3.addGeometry(Part.LineSegment(Vector(3.3, -35.1, 0), Vector(3.3, -39.1, 0)), False)
sketch3.addGeometry(Part.LineSegment(Vector(3.3, -39.1, 0), Vector(-3.3, -39.1, 0)), False)
sketch3.addGeometry(Part.LineSegment(Vector(26.7, -39.1, 0), Vector(26.7, -35.1, 0)), False)
sketch3.addGeometry(Part.LineSegment(Vector(26.7, -35.1, 0), Vector(33.3, -35.1, 0)), False)
sketch3.addGeometry(Part.LineSegment(Vector(33.3, -35.1, 0), Vector(33.3, -39.1, 0)), False)
sketch3.addGeometry(Part.LineSegment(Vector(33.3, -39.1, 0), Vector(26.7, -39.1, 0)), False)
sketch3.addConstraint(Sketcher.Constraint("Coincident", 0, 2, 1, 1))
sketch3.addConstraint(Sketcher.Constraint("Coincident", 1, 2, 2, 1))
sketch3.addConstraint(Sketcher.Constraint("Coincident", 2, 2, 3, 1))
sketch3.addConstraint(Sketcher.Constraint("Coincident", 3, 2, 0, 1))
sketch3.addConstraint(Sketcher.Constraint("Coincident", 4, 2, 5, 1))
sketch3.addConstraint(Sketcher.Constraint("Coincident", 5, 2, 6, 1))
sketch3.addConstraint(Sketcher.Constraint("Coincident", 6, 2, 7, 1))
sketch3.addConstraint(Sketcher.Constraint("Coincident", 7, 2, 4, 1))
sketch3.addConstraint(Sketcher.Constraint("Coincident", 8, 2, 9, 1))
sketch3.addConstraint(Sketcher.Constraint("Coincident", 9, 2, 10, 1))
sketch3.addConstraint(Sketcher.Constraint("Coincident", 10, 2, 11, 1))
sketch3.addConstraint(Sketcher.Constraint("Coincident", 11, 2, 8, 1))
sketch3.addConstraint(Sketcher.Constraint("Vertical", 0))
sketch3.addConstraint(Sketcher.Constraint("Horizontal", 1))
sketch3.addConstraint(Sketcher.Constraint("Vertical", 2))
sketch3.addConstraint(Sketcher.Constraint("Horizontal", 3))
sketch3.addConstraint(Sketcher.Constraint("Vertical", 4))
sketch3.addConstraint(Sketcher.Constraint("Horizontal", 5))
sketch3.addConstraint(Sketcher.Constraint("Vertical", 6))
sketch3.addConstraint(Sketcher.Constraint("Horizontal", 7))
sketch3.addConstraint(Sketcher.Constraint("Vertical", 8))
sketch3.addConstraint(Sketcher.Constraint("Horizontal", 9))
sketch3.addConstraint(Sketcher.Constraint("Vertical", 10))
sketch3.addConstraint(Sketcher.Constraint("Horizontal", 11))
sketch3.addConstraint(Sketcher.Constraint("Symmetric", 1, 2, 8, 2, -2))
sketch3.addConstraint(Sketcher.Constraint("Symmetric", 3, 2, 10, 2, -2))
sketch3.addConstraint(Sketcher.Constraint("Horizontal", 1, 2, 4, 2))
sketch3.addConstraint(Sketcher.Constraint("Horizontal", 3, 2, 6, 2))
sketch3.addConstraint(Sketcher.Constraint("Equal", 3, 5))
sketch3.addConstraint(Sketcher.Constraint("DistanceX", 1, 1, 1, 2, 6.6))
sketch3.addConstraint(Sketcher.Constraint("DistanceY", 0, 1, 0, 2, 4.0))
sketch3.addConstraint(Sketcher.Constraint("DistanceX", 0, 2, 4, 2, 30.0))
sketch3.addConstraint(Sketcher.Constraint("DistanceX", 4, 2, 8, 2, 30.0))
sketch3.addConstraint(Sketcher.Constraint("DistanceY", 0, 2, -1, 1, 35.1))
sketch3.setExpression("Constraints[29]", "Params.sketch3_width")
sketch3.setExpression("Constraints[30]", "Params.sketch3_height")
pocket2 = body.newObject("PartDesign::Pocket", "Pocket001")
pocket2.Profile = sketch3
pocket2.setExpression("Length", "Params.pocket2_length")
pocket2.Reversed = True
doc.recompute()

chamfer2 = body.newObject("PartDesign::Chamfer", "Chamfer001")
chamfer2.Base = (pocket2, edges_at(pocket2, [(-30, 5, -39.1), (0, 5, -39.1), (30, 5, -39.1)]))
chamfer2.setExpression("Size", "Params.chamfer2_size")

doc.recompute()
